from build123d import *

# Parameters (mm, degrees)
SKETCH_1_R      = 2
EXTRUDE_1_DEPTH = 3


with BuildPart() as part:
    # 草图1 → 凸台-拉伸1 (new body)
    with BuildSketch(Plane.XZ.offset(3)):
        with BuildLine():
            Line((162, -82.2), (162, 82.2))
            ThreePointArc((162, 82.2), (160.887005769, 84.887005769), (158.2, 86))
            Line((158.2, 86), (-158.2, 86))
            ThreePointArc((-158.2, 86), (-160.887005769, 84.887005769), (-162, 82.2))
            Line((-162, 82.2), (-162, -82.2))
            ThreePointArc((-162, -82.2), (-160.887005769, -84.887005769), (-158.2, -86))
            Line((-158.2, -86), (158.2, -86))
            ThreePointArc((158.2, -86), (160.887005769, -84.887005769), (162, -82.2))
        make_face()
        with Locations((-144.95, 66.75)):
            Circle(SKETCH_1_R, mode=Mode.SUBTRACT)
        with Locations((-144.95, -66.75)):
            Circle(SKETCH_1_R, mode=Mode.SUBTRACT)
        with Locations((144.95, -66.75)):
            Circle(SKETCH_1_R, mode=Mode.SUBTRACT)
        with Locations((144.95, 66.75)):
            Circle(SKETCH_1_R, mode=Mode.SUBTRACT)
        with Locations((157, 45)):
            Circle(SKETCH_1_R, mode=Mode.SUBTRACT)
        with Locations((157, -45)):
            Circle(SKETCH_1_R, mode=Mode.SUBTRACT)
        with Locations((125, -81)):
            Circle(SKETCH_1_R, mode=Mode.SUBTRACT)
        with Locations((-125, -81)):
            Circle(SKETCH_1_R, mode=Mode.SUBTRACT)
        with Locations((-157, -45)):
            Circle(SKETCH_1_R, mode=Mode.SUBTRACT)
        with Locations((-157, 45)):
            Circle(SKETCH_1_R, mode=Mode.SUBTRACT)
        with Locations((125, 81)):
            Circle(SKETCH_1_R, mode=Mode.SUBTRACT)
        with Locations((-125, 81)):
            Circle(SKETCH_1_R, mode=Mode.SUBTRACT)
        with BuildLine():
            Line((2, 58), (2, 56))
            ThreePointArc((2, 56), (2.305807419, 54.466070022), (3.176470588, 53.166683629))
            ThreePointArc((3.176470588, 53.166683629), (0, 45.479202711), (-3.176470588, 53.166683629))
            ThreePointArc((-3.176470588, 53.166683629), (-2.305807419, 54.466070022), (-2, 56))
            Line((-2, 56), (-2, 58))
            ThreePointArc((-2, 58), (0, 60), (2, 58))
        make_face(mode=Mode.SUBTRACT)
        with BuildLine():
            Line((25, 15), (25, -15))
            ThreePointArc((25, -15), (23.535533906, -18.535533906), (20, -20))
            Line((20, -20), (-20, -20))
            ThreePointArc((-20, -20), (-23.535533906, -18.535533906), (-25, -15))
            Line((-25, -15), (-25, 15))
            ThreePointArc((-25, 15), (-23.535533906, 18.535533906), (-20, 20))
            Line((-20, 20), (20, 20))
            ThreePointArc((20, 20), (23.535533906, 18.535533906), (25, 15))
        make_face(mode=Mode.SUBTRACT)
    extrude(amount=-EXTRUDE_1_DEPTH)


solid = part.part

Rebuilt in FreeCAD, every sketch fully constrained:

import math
import FreeCAD as App
import Part
import Sketcher

doc = App.newDocument("Part")
body = doc.addObject("PartDesign::Body", "Body")

# Sketch on XZ plane
sketch1 = doc.addObject("Sketcher::SketchObject", "Sketch")
body.addObject(sketch1)
sketch1.AttachmentSupport = (doc.XZ_Plane, [""])
sketch1.MapMode = "FlatFace"
sketch1.AttachmentOffset = App.Placement(App.Vector(0, 0, 3), App.Rotation())
sketch1.addGeometry([
    Part.LineSegment(App.Vector(162, -82.2, 0), App.Vector(162, 82.2, 0)),  # 0
    Part.ArcOfCircle(Part.Circle(App.Vector(158.2, 82.2, 0), App.Vector(0, 0, 1), 3.8), math.radians(0), math.radians(90)),  # 1
    Part.LineSegment(App.Vector(158.2, 86, 0), App.Vector(-158.2, 86, 0)),  # 2
    Part.ArcOfCircle(Part.Circle(App.Vector(-158.2, 82.2, 0), App.Vector(0, 0, 1), 3.8), math.radians(90), math.radians(180)),  # 3
    Part.LineSegment(App.Vector(-162, 82.2, 0), App.Vector(-162, -82.2, 0)),  # 4
    Part.ArcOfCircle(Part.Circle(App.Vector(-158.2, -82.2, 0), App.Vector(0, 0, 1), 3.8), math.radians(180), math.radians(270)),  # 5
    Part.LineSegment(App.Vector(-158.2, -86, 0), App.Vector(158.2, -86, 0)),  # 6
    Part.ArcOfCircle(Part.Circle(App.Vector(158.2, -82.2, 0), App.Vector(0, 0, 1), 3.8), math.radians(-90), math.radians(0)),  # 7
    Part.Circle(App.Vector(-125, -81, 0), App.Vector(0, 0, 1), 2),  # 8
    Part.Circle(App.Vector(-144.95, -66.75, 0), App.Vector(0, 0, 1), 2),  # 9
    Part.Circle(App.Vector(-157, -45, 0), App.Vector(0, 0, 1), 2),  # 10
    Part.Circle(App.Vector(125, -81, 0), App.Vector(0, 0, 1), 2),  # 11
    Part.Circle(App.Vector(144.95, -66.75, 0), App.Vector(0, 0, 1), 2),  # 12
    Part.Circle(App.Vector(157, -45, 0), App.Vector(0, 0, 1), 2),  # 13
    Part.Circle(App.Vector(-157, 45, 0), App.Vector(0, 0, 1), 2),  # 14
    Part.Circle(App.Vector(-144.95, 66.75, 0), App.Vector(0, 0, 1), 2),  # 15
    Part.Circle(App.Vector(-125, 81, 0), App.Vector(0, 0, 1), 2),  # 16
    Part.ArcOfCircle(Part.Circle(App.Vector(20, 15, 0), App.Vector(0, 0, 1), 5), math.radians(0), math.radians(90)),  # 17
    Part.LineSegment(App.Vector(25, 15, 0), App.Vector(25, -15, 0)),  # 18
    Part.ArcOfCircle(Part.Circle(App.Vector(20, -15, 0), App.Vector(0, 0, 1), 5), math.radians(-90), math.radians(0)),  # 19
    Part.LineSegment(App.Vector(20, -20, 0), App.Vector(-20, -20, 0)),  # 20
    Part.ArcOfCircle(Part.Circle(App.Vector(-20, -15, 0), App.Vector(0, 0, 1), 5), math.radians(180), math.radians(270)),  # 21
    Part.LineSegment(App.Vector(-25, -15, 0), App.Vector(-25, 15, 0)),  # 22
    Part.ArcOfCircle(Part.Circle(App.Vector(-20, 15, 0), App.Vector(0, 0, 1), 5), math.radians(90), math.radians(180)),  # 23
    Part.LineSegment(App.Vector(-20, 20, 0), App.Vector(20, 20, 0)),  # 24
    Part.ArcOfCircle(Part.Circle(App.Vector(0, 58, 0), App.Vector(0, 0, 1), 2), math.radians(0), math.radians(180)),  # 25
    Part.LineSegment(App.Vector(2, 58, 0), App.Vector(2, 56, 0)),  # 26
    Part.ArcOfCircle(Part.Circle(App.Vector(6, 56, 0), App.Vector(0, 0, 1), 4), math.radians(180), math.radians(225.099128)),  # 27
    Part.ArcOfCircle(Part.Circle(App.Vector(0, 49.979203, 0), App.Vector(0, 0, 1), 4.5), math.radians(134.900872), math.radians(405.099128)),  # 28
    Part.ArcOfCircle(Part.Circle(App.Vector(-6, 56, 0), App.Vector(0, 0, 1), 4), math.radians(-45.099128), math.radians(0)),  # 29
    Part.LineSegment(App.Vector(-2, 56, 0), App.Vector(-2, 58, 0)),  # 30
    Part.Circle(App.Vector(157, 45, 0), App.Vector(0, 0, 1), 2),  # 31
    Part.Circle(App.Vector(144.95, 66.75, 0), App.Vector(0, 0, 1), 2),  # 32
    Part.Circle(App.Vector(125, 81, 0), App.Vector(0, 0, 1), 2),  # 33
], False)
sketch1.addConstraint([
    Sketcher.Constraint("Tangent", 0, 2, 1, 1),
    Sketcher.Constraint("Tangent", 1, 2, 2, 1),
    Sketcher.Constraint("Tangent", 2, 2, 3, 1),
    Sketcher.Constraint("Tangent", 3, 2, 4, 1),
    Sketcher.Constraint("Tangent", 4, 2, 5, 1),
    Sketcher.Constraint("Tangent", 5, 2, 6, 1),
    Sketcher.Constraint("Tangent", 6, 2, 7, 1),
    Sketcher.Constraint("Tangent", 7, 2, 0, 1),
    Sketcher.Constraint("Tangent", 17, 1, 18, 1),
    Sketcher.Constraint("Tangent", 18, 2, 19, 2),
    Sketcher.Constraint("Tangent", 19, 1, 20, 1),
    Sketcher.Constraint("Tangent", 20, 2, 21, 2),
    Sketcher.Constraint("Tangent", 21, 1, 22, 1),
    Sketcher.Constraint("Tangent", 22, 2, 23, 2),
    Sketcher.Constraint("Tangent", 23, 1, 24, 1),
    Sketcher.Constraint("Tangent", 24, 2, 17, 2),
    Sketcher.Constraint("Tangent", 25, 1, 26, 1),
    Sketcher.Constraint("Tangent", 26, 2, 27, 1),
    Sketcher.Constraint("Tangent", 27, 2, 28, 2),
    Sketcher.Constraint("Tangent", 28, 1, 29, 1),
    Sketcher.Constraint("Tangent", 29, 2, 30, 1),
    Sketcher.Constraint("Tangent", 30, 2, 25, 2),
    Sketcher.Constraint("Vertical", 0),
    Sketcher.Constraint("Horizontal", 2),
    Sketcher.Constraint("Vertical", 4),
    Sketcher.Constraint("Horizontal", 6),
    Sketcher.Constraint("Vertical", 18),
    Sketcher.Constraint("Horizontal", 20),
    Sketcher.Constraint("Vertical", 22),
    Sketcher.Constraint("Horizontal", 24),
    Sketcher.Constraint("Vertical", 26),
    Sketcher.Constraint("Vertical", 30),
    Sketcher.Constraint("Equal", 1, 3),
    Sketcher.Constraint("Equal", 3, 5),
    Sketcher.Constraint("Equal", 5, 7),
    Sketcher.Constraint("Equal", 8, 9),
    Sketcher.Constraint("Equal", 9, 10),
    Sketcher.Constraint("Equal", 10, 11),
    Sketcher.Constraint("Equal", 11, 12),
    Sketcher.Constraint("Equal", 12, 13),
    Sketcher.Constraint("Equal", 13, 14),
    Sketcher.Constraint("Equal", 14, 15),
    Sketcher.Constraint("Equal", 15, 16),
    Sketcher.Constraint("Equal", 17, 19),
    Sketcher.Constraint("Equal", 19, 21),
    Sketcher.Constraint("Equal", 21, 23),
    Sketcher.Constraint("Equal", 16, 25),
    Sketcher.Constraint("Equal", 27, 29),
    Sketcher.Constraint("Equal", 25, 31),
    Sketcher.Constraint("Equal", 31, 32),
    Sketcher.Constraint("Equal", 32, 33),
    Sketcher.Constraint("Symmetric", 1, 3, 5, 3, -1, 1),
    Sketcher.Constraint("Symmetric", 13, 3, 14, 3, -1, 1),
    Sketcher.Constraint("Symmetric", 12, 3, 15, 3, -1, 1),
    Sketcher.Constraint("Symmetric", 11, 3, 16, 3, -1, 1),
    Sketcher.Constraint("Symmetric", 17, 3, 21, 3, -1, 1),
    Sketcher.Constraint("Symmetric", 10, 3, 31, 3, -1, 1),
    Sketcher.Constraint("Symmetric", 9, 3, 32, 3, -1, 1),
    Sketcher.Constraint("Symmetric", 8, 3, 33, 3, -1, 1),
    Sketcher.Constraint("Symmetric", 8, 3, 11, 3, -2),
    Sketcher.Constraint("Symmetric", 9, 3, 12, 3, -2),
    Sketcher.Constraint("Symmetric", 10, 3, 13, 3, -2),
    Sketcher.Constraint("Symmetric", 27, 3, 29, 3, -2),
    Sketcher.Constraint("Diameter", 8, 4.0),
    Sketcher.Constraint("Radius", 17, 5.0),
    Sketcher.Constraint("Radius", 27, 4.0),
    Sketcher.Constraint("Radius", 1, 3.8),
    Sketcher.Constraint("Radius", 28, 4.5),
    Sketcher.Constraint("DistanceX", 20, 2, 20, 1, 40.0),
    Sketcher.Constraint("DistanceY", 18, 2, 18, 1, 30.0),
    Sketcher.Constraint("DistanceY", 26, 2, 26, 1, 2.0),
    Sketcher.Constraint("DistanceX", 2, 2, 2, 1, 316.4),
    Sketcher.Constraint("DistanceY", 0, 1, 0, 2, 164.4),
    Sketcher.Constraint("DistanceX", 8, 3, -1, 1, 125.0),
    Sketcher.Constraint("DistanceY", 8, 3, -1, 1, 81.0),
    Sketcher.Constraint("DistanceX", 10, 3, -1, 1, 157.0),
    Sketcher.Constraint("DistanceY", 10, 3, -1, 1, 45.0),
    Sketcher.Constraint("DistanceY", -1, 1, 25, 3, 58.0),
    Sketcher.Constraint("DistanceX", 9, 3, 12, 3, 289.9),
    Sketcher.Constraint("DistanceY", 9, 3, 15, 3, 133.5),
])
pad1 = doc.addObject("PartDesign::Pad", "Pad")
body.addObject(pad1)
pad1.Profile = sketch1
pad1.Length = 3
pad1.Reversed = True

doc.recompute()
